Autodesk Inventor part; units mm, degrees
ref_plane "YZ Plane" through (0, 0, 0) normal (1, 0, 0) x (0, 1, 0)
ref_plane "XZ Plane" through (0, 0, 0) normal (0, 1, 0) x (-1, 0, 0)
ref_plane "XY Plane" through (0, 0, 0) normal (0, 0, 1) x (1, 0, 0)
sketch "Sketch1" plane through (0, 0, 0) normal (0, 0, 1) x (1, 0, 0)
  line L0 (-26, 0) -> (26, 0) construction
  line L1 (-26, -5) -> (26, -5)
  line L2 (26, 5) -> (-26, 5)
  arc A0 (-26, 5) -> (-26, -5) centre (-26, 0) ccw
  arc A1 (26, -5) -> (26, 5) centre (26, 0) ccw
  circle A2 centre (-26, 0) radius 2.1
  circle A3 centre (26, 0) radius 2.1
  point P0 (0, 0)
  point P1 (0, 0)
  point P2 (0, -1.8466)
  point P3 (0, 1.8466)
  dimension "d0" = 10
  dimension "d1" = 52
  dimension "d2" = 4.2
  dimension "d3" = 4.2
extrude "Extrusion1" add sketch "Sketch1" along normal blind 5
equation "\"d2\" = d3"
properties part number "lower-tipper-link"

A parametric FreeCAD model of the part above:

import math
import FreeCAD as App
import Part
import Sketcher
from FreeCAD import Vector
Q = App.Units.Quantity

doc = App.newDocument("Part")
body = doc.addObject("PartDesign::Body", "Body")

sketch1 = body.newObject("Sketcher::SketchObject", "Sketch")
sketch1.AttachmentSupport = (doc.getObject("XY_Plane"), [""])
sketch1.MapMode = "FlatFace"
sketch1.addGeometry([
    Part.ArcOfCircle(Part.Circle(Vector(-26, 0, 0), Vector(0, 0, 1), 5), math.radians(90), math.radians(270)),
    Part.LineSegment(Vector(-26, -5, 0), Vector(26, -5, 0)),
    Part.ArcOfCircle(Part.Circle(Vector(26, 0, 0), Vector(0, 0, 1), 5), math.radians(-90), math.radians(90)),
    Part.LineSegment(Vector(26, 5, 0), Vector(-26, 5, 0)),
    Part.Circle(Vector(-26, 0, 0), Vector(0, 0, 1), 2.1),
    Part.Circle(Vector(26, 0, 0), Vector(0, 0, 1), 2.1),
], False)
sketch1.addConstraint([
    Sketcher.Constraint("Tangent", 0, 2, 1, 1),
    Sketcher.Constraint("Tangent", 1, 2, 2, 1),
    Sketcher.Constraint("Tangent", 2, 2, 3, 1),
    Sketcher.Constraint("Tangent", 3, 2, 0, 1),
    Sketcher.Constraint("Horizontal", 1),
    Sketcher.Constraint("Horizontal", 3),
    Sketcher.Constraint("Coincident", 4, 3, 0, 3),
    Sketcher.Constraint("Coincident", 5, 3, 2, 3),
    Sketcher.Constraint("Equal", 4, 5),
    Sketcher.Constraint("Symmetric", 0, 3, 2, 3, -1, 1),
    Sketcher.Constraint("Radius", 0, Q("5 mm")),
    Sketcher.Constraint("Diameter", 4, Q("4.2 mm")),
    Sketcher.Constraint("DistanceX", 1, 1, 1, 2, Q("52 mm")),
])
pad1 = body.newObject("PartDesign::Pad", "Pad")
pad1.Profile = sketch1
pad1.Length = 5

doc.recompute()
